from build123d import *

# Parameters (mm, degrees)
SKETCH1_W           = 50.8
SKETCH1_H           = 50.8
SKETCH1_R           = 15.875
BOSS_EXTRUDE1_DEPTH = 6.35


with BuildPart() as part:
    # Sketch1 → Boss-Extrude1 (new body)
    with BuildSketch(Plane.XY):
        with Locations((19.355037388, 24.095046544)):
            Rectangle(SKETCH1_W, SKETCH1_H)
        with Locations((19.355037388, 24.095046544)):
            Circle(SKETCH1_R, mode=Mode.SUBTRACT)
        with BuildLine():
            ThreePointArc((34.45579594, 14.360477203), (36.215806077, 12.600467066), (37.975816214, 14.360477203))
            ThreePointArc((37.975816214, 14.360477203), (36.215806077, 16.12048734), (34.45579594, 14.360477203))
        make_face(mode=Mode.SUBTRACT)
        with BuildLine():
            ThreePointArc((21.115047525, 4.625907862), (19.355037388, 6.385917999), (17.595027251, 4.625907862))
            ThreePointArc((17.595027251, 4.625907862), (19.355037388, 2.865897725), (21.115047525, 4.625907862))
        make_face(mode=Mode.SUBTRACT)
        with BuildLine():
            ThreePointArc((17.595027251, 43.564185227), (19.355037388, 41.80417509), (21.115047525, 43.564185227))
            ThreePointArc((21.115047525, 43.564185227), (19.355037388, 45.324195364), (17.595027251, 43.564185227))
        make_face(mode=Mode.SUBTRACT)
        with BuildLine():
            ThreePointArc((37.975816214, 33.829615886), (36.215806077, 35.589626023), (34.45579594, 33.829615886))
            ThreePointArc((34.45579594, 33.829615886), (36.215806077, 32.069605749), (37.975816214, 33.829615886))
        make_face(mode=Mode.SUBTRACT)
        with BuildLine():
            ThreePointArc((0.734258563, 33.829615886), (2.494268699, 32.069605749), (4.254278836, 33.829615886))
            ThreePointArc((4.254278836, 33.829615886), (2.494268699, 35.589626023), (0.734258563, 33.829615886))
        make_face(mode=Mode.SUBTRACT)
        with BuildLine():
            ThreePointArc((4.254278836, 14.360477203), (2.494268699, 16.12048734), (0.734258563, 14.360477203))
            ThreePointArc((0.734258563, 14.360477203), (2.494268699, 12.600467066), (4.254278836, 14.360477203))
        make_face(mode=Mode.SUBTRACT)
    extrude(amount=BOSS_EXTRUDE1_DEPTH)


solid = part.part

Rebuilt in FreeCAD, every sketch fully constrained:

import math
import FreeCAD as App
import Part
import Sketcher
from FreeCAD import Vector
Q = App.Units.Quantity

doc = App.newDocument("Part")
body = doc.addObject("PartDesign::Body", "Body")

sketch1 = body.newObject("Sketcher::SketchObject", "Sketch")
sketch1.AttachmentSupport = (doc.getObject("XY_Plane"), [""])
sketch1.MapMode = "FlatFace"
sketch1.addGeometry(Part.LineSegment(Vector(-6, 49.5, 0), Vector(-6, -1.3, 0)), False)
sketch1.addGeometry(Part.LineSegment(Vector(-6, -1.3, 0), Vector(44.8, -1.3, 0)), False)
sketch1.addGeometry(Part.LineSegment(Vector(44.8, -1.3, 0), Vector(44.8, 49.5, 0)), False)
sketch1.addGeometry(Part.LineSegment(Vector(44.8, 49.5, 0), Vector(-6, 49.5, 0)), False)
sketch1.addGeometry(Part.Circle(Vector(19.4, 4.6, 0), Vector(0, 0, 1), 1.8), False)
sketch1.addGeometry(Part.ArcOfCircle(Part.Circle(Vector(2.5, 14.4, 0), Vector(0, 0, 1), 1.8), math.radians(0), math.radians(180)), False)
sketch1.addGeometry(Part.ArcOfCircle(Part.Circle(Vector(2.5, 14.4, 0), Vector(0, 0, 1), 1.8), math.radians(180), math.radians(360)), False)
sketch1.addGeometry(Part.Circle(Vector(19.4, 24.1, 0), Vector(0, 0, 1), 15.9), False)
sketch1.addGeometry(Part.Circle(Vector(36.2, 14.4, 0), Vector(0, 0, 1), 1.8), False)
sketch1.addGeometry(Part.ArcOfCircle(Part.Circle(Vector(2.5, 33.8, 0), Vector(0, 0, 1), 1.8), math.radians(180), math.radians(360)), False)
sketch1.addGeometry(Part.ArcOfCircle(Part.Circle(Vector(2.5, 33.8, 0), Vector(0, 0, 1), 1.8), math.radians(0), math.radians(180)), False)
sketch1.addGeometry(Part.Circle(Vector(19.4, 43.6, 0), Vector(0, 0, 1), 1.8), False)
sketch1.addGeometry(Part.Circle(Vector(36.2, 33.8, 0), Vector(0, 0, 1), 1.8), False)
sketch1.addConstraint(Sketcher.Constraint("Coincident", 0, 2, 1, 1))
sketch1.addConstraint(Sketcher.Constraint("Coincident", 1, 2, 2, 1))
sketch1.addConstraint(Sketcher.Constraint("Coincident", 2, 2, 3, 1))
sketch1.addConstraint(Sketcher.Constraint("Coincident", 3, 2, 0, 1))
sketch1.addConstraint(Sketcher.Constraint("Tangent", 5, 1, 6, 2))
sketch1.addConstraint(Sketcher.Constraint("Coincident", 6, 1, 5, 2))
sketch1.addConstraint(Sketcher.Constraint("Tangent", 9, 1, 10, 2))
sketch1.addConstraint(Sketcher.Constraint("Coincident", 10, 1, 9, 2))
sketch1.addConstraint(Sketcher.Constraint("Vertical", 0))
sketch1.addConstraint(Sketcher.Constraint("Horizontal", 1))
sketch1.addConstraint(Sketcher.Constraint("Vertical", 2))
sketch1.addConstraint(Sketcher.Constraint("Horizontal", 3))
sketch1.addConstraint(Sketcher.Constraint("Equal", 4, 5))
sketch1.addConstraint(Sketcher.Constraint("Equal", 6, 8))
sketch1.addConstraint(Sketcher.Constraint("Equal", 8, 9))
sketch1.addConstraint(Sketcher.Constraint("Equal", 10, 11))
sketch1.addConstraint(Sketcher.Constraint("Equal", 11, 12))
sketch1.addConstraint(Sketcher.Constraint("Horizontal", 6, 3, 8, 3))
sketch1.addConstraint(Sketcher.Constraint("Horizontal", 10, 3, 12, 3))
sketch1.addConstraint(Sketcher.Constraint("Horizontal", 8, 3, 5, 1))
sketch1.addConstraint(Sketcher.Constraint("Horizontal", 5, 1, 6, 1))
sketch1.addConstraint(Sketcher.Constraint("Horizontal", 12, 3, 9, 1))
sketch1.addConstraint(Sketcher.Constraint("Horizontal", 9, 1, 10, 1))
sketch1.addConstraint(Sketcher.Constraint("Vertical", 4, 3, 7, 3))
sketch1.addConstraint(Sketcher.Constraint("Vertical", 6, 3, 9, 3))
sketch1.addConstraint(Sketcher.Constraint("Vertical", 7, 3, 11, 3))
sketch1.addConstraint(Sketcher.Constraint("Vertical", 8, 3, 12, 3))
sketch1.addConstraint(Sketcher.Constraint("Equal", 3, 0))
sketch1.addConstraint(Sketcher.Constraint("Diameter", 7, Q("1.25 in")))
sketch1.addConstraint(Sketcher.Constraint("DistanceX", 1, 1, 1, 2, Q("2 in")))
sketch1.addConstraint(Sketcher.Constraint("DistanceX", 0, 2, 4, 3, Q("1 in")))
sketch1.addConstraint(Sketcher.Constraint("DistanceY", 0, 2, 7, 3, Q("1 in")))
sketch1.addConstraint(Sketcher.Constraint("Diameter", 4, Q("3.52002 mm")))
sketch1.addConstraint(Sketcher.Constraint("DistanceX", -1, 1, 5, 3, Q("2.494269 mm")))
sketch1.addConstraint(Sketcher.Constraint("DistanceX", 5, 3, 4, 3, Q("16.860769 mm")))
sketch1.addConstraint(Sketcher.Constraint("DistanceY", 4, 3, 5, 3, Q("9.734569 mm")))
sketch1.addConstraint(Sketcher.Constraint("DistanceY", 5, 3, 7, 3, Q("9.734569 mm")))
sketch1.addConstraint(Sketcher.Constraint("DistanceX", 7, 3, 8, 3, Q("16.860769 mm")))
sketch1.addConstraint(Sketcher.Constraint("DistanceY", 5, 3, 9, 3, Q("19.469139 mm")))
sketch1.addConstraint(Sketcher.Constraint("DistanceY", 9, 3, 11, 3, Q("9.734569 mm")))
sketch1.addConstraint(Sketcher.Constraint("DistanceY", -1, 1, 4, 3, Q("4.625908 mm")))
pad1 = body.newObject("PartDesign::Pad", "Pad")
pad1.Profile = sketch1
pad1.Length = Q("0.25 in")

doc.recompute()
